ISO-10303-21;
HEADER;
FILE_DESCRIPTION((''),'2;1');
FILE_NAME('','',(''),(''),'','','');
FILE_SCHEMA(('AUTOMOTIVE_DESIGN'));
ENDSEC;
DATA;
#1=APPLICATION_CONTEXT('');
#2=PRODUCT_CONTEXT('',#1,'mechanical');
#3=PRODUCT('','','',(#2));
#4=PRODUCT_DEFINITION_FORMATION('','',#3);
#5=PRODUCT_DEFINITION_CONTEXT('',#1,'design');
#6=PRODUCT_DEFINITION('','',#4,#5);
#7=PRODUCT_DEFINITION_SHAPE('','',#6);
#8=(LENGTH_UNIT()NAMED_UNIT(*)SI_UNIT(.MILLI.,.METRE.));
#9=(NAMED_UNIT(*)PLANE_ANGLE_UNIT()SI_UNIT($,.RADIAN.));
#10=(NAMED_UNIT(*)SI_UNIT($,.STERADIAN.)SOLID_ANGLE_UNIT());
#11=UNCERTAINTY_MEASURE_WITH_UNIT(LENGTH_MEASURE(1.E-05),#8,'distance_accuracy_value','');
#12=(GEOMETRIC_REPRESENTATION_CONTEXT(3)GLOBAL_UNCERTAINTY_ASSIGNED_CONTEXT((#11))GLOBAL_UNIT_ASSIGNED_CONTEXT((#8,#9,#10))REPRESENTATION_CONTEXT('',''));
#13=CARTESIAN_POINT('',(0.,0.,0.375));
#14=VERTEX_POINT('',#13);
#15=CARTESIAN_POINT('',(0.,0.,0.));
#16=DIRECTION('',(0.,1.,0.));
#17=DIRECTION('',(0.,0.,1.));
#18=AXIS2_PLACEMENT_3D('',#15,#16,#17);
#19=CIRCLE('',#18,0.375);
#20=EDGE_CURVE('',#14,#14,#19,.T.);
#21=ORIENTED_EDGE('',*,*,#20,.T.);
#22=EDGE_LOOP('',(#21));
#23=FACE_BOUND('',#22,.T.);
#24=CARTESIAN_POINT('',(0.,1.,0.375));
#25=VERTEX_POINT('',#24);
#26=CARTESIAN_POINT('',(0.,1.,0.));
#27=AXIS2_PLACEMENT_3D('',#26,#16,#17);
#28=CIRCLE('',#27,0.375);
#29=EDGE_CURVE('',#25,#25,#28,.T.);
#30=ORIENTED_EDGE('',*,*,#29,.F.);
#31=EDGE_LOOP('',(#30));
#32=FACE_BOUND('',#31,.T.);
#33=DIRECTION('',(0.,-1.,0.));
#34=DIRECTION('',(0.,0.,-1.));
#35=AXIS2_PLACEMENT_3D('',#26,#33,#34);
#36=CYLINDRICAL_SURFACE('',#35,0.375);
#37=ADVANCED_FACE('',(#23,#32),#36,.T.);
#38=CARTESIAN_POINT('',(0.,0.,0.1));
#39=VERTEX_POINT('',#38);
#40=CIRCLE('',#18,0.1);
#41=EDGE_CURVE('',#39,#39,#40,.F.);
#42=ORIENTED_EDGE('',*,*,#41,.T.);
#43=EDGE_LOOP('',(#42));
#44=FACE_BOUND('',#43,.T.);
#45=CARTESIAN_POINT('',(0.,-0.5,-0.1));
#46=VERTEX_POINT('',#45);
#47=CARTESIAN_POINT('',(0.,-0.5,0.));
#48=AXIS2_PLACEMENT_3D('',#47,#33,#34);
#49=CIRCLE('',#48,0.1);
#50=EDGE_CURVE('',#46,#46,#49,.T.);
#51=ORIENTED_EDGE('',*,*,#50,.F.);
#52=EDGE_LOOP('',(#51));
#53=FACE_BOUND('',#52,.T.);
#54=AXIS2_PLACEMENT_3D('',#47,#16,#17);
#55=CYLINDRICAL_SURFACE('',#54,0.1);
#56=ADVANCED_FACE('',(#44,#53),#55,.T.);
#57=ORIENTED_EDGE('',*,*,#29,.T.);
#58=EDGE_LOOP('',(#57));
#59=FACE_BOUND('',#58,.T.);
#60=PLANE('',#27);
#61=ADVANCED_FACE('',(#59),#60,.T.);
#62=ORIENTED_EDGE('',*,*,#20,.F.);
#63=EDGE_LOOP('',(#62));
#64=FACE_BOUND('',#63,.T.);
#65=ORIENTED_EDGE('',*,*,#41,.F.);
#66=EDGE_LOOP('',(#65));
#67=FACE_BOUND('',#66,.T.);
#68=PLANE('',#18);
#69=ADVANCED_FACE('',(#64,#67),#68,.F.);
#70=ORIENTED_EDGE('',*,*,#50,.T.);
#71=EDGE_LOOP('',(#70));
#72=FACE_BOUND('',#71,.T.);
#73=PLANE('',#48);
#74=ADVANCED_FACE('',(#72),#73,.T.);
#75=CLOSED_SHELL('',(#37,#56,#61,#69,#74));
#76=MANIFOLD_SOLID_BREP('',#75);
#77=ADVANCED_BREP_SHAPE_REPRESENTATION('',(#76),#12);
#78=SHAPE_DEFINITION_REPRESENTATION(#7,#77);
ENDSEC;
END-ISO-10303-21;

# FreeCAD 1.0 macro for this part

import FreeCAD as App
import Part
import Sketcher

V = App.Vector
Q = App.Units.Quantity

doc = App.newDocument("Part")
body = doc.addObject("PartDesign::Body", "Body")

# Sketch on XZ plane
sketch1 = body.newObject("Sketcher::SketchObject", "Sketch")
sketch1.AttachmentSupport = (doc.getObject("XZ_Plane"), [""])
sketch1.MapMode = "FlatFace"
sketch1.addGeometry(Part.Circle(V(0, 0, 0), V(0, 0, 1), 0.38), False)
sketch1.addConstraint([
    Sketcher.Constraint("Coincident", 0, 3, -1, 1),
    Sketcher.Constraint("Diameter", 0, Q("0.75 mm")),
])
pad1 = body.newObject("PartDesign::Pad", "Pad")
pad1.Profile = sketch1
pad1.Length = 1
pad1.Reversed = True

# Sketch on XZ plane
sketch2 = body.newObject("Sketcher::SketchObject", "Sketch001")
sketch2.AttachmentSupport = (doc.getObject("XZ_Plane"), [""])
sketch2.MapMode = "FlatFace"
sketch2.addGeometry(Part.Circle(V(0, 0, 0), V(0, 0, 1), 0.1), False)
sketch2.addConstraint([
    Sketcher.Constraint("Coincident", 0, 3, -1, 1),
    Sketcher.Constraint("Diameter", 0, Q("0.2 mm")),
])
pad2 = body.newObject("PartDesign::Pad", "Pad001")
pad2.Profile = sketch2
pad2.Length = 0.5

doc.recompute()
